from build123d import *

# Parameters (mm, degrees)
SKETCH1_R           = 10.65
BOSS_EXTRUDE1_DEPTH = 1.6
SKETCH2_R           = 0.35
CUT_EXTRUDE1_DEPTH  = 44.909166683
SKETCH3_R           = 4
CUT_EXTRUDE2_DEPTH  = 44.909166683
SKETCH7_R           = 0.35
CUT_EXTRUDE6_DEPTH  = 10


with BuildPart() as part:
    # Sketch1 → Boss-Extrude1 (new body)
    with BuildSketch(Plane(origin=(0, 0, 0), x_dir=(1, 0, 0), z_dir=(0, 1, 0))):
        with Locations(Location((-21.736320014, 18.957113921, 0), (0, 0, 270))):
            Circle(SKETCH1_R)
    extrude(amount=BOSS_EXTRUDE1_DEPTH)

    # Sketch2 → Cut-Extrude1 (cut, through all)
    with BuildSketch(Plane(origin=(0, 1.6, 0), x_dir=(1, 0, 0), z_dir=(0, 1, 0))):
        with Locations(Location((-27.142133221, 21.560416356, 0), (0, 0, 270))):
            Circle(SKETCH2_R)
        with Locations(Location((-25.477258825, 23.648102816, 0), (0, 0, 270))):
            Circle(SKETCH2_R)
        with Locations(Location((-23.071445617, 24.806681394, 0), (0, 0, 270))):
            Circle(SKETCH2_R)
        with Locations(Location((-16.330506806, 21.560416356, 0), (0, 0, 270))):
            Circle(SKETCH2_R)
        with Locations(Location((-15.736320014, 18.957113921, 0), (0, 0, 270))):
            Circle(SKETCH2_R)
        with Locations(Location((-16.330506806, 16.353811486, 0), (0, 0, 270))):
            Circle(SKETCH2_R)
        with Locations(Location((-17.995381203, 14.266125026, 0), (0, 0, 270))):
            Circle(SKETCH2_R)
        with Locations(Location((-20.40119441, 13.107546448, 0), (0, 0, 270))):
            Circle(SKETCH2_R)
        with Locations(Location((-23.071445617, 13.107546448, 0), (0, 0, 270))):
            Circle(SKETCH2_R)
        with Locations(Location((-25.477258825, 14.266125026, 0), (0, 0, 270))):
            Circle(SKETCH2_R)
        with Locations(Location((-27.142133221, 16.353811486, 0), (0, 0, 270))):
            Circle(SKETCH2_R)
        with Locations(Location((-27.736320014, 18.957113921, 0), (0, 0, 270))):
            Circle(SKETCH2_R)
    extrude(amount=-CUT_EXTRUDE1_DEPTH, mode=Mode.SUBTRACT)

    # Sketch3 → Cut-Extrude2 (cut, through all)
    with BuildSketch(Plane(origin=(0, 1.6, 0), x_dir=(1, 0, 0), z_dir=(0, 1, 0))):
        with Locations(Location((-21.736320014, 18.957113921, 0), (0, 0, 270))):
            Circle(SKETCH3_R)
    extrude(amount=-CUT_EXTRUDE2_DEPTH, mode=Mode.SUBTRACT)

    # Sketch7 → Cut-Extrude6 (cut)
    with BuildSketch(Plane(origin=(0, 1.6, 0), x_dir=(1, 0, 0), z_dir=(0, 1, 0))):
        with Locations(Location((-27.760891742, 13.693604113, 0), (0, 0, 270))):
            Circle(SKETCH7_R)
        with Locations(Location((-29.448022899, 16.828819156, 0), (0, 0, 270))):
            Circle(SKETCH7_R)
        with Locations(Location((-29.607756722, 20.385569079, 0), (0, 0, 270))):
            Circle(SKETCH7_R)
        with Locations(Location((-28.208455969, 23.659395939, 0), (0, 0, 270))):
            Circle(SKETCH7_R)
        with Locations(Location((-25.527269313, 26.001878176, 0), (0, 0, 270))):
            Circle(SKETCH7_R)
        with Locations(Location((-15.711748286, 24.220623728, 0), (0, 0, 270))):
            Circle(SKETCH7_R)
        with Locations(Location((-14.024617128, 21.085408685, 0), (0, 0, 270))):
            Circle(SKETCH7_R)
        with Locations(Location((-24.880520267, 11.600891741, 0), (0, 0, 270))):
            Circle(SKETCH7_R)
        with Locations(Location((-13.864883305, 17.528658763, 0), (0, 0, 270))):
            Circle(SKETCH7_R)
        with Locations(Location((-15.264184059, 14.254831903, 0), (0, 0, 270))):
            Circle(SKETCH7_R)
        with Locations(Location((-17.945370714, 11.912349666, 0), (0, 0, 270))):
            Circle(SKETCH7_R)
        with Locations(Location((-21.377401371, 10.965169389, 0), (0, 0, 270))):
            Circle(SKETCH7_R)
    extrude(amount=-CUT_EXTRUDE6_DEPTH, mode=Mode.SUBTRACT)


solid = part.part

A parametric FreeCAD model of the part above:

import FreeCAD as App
import Part
import Sketcher

V = App.Vector
Q = App.Units.Quantity

doc = App.newDocument("Part")
body = doc.addObject("PartDesign::Body", "Body")

sketch1 = body.newObject("Sketcher::SketchObject", "Sketch")
sketch1.AttachmentSupport = (doc.getObject("XZ_Plane"), [""])
sketch1.MapMode = "FlatFace"
sketch1.addGeometry(Part.Circle(V(-22, -19, 0), V(0, 0, 1), 11), False)
sketch1.addConstraint(Sketcher.Constraint("Diameter", 0, Q("21.3 mm")))
sketch1.addConstraint(Sketcher.Constraint("DistanceX", 0, 3, -1, 1, Q("21.73632 mm")))
sketch1.addConstraint(Sketcher.Constraint("DistanceY", 0, 3, -1, 1, Q("18.957114 mm")))
pad1 = body.newObject("PartDesign::Pad", "Pad")
pad1.Profile = sketch1
pad1.Length = 1.6
pad1.Reversed = True

sketch2 = body.newObject("Sketcher::SketchObject", "Sketch001")
sketch2.AttachmentSupport = (doc.getObject("XZ_Plane"), [""])
sketch2.MapMode = "FlatFace"
sketch2.AttachmentOffset = App.Placement(V(0, 0, -1.6), App.Rotation())
sketch2.addGeometry(Part.Circle(V(-27.14, -21.56, 0), V(0, 0, 1), 0.35), False)
sketch2.addGeometry(Part.Circle(V(-25.48, -23.65, 0), V(0, 0, 1), 0.35), False)
sketch2.addGeometry(Part.Circle(V(-23.07, -24.81, 0), V(0, 0, 1), 0.35), False)
sketch2.addGeometry(Part.Circle(V(-16.33, -21.56, 0), V(0, 0, 1), 0.35), False)
sketch2.addGeometry(Part.Circle(V(-15.74, -18.96, 0), V(0, 0, 1), 0.35), False)
sketch2.addGeometry(Part.Circle(V(-16.33, -16.35, 0), V(0, 0, 1), 0.35), False)
sketch2.addGeometry(Part.Circle(V(-18, -14.27, 0), V(0, 0, 1), 0.35), False)
sketch2.addGeometry(Part.Circle(V(-20.4, -13.11, 0), V(0, 0, 1), 0.35), False)
sketch2.addGeometry(Part.Circle(V(-23.07, -13.11, 0), V(0, 0, 1), 0.35), False)
sketch2.addGeometry(Part.Circle(V(-25.48, -14.27, 0), V(0, 0, 1), 0.35), False)
sketch2.addGeometry(Part.Circle(V(-27.14, -16.35, 0), V(0, 0, 1), 0.35), False)
sketch2.addGeometry(Part.Circle(V(-27.74, -18.96, 0), V(0, 0, 1), 0.35), False)
sketch2.addConstraint(Sketcher.Constraint("Equal", 0, 1))
sketch2.addConstraint(Sketcher.Constraint("Equal", 1, 2))
sketch2.addConstraint(Sketcher.Constraint("Equal", 2, 3))
sketch2.addConstraint(Sketcher.Constraint("Equal", 3, 4))
sketch2.addConstraint(Sketcher.Constraint("Equal", 4, 5))
sketch2.addConstraint(Sketcher.Constraint("Equal", 5, 6))
sketch2.addConstraint(Sketcher.Constraint("Equal", 6, 7))
sketch2.addConstraint(Sketcher.Constraint("Equal", 7, 8))
sketch2.addConstraint(Sketcher.Constraint("Equal", 8, 9))
sketch2.addConstraint(Sketcher.Constraint("Equal", 9, 10))
sketch2.addConstraint(Sketcher.Constraint("Equal", 10, 11))
sketch2.addConstraint(Sketcher.Constraint("Horizontal", 0, 3, 3, 3))
sketch2.addConstraint(Sketcher.Constraint("Horizontal", 7, 3, 8, 3))
sketch2.addConstraint(Sketcher.Constraint("Horizontal", 6, 3, 9, 3))
sketch2.addConstraint(Sketcher.Constraint("Horizontal", 5, 3, 10, 3))
sketch2.addConstraint(Sketcher.Constraint("Horizontal", 4, 3, 11, 3))
sketch2.addConstraint(Sketcher.Constraint("Vertical", 3, 3, 5, 3))
sketch2.addConstraint(Sketcher.Constraint("Vertical", 2, 3, 8, 3))
sketch2.addConstraint(Sketcher.Constraint("Vertical", 1, 3, 9, 3))
sketch2.addConstraint(Sketcher.Constraint("Vertical", 0, 3, 10, 3))
sketch2.addConstraint(Sketcher.Constraint("Diameter", 0, Q("0.7 mm")))
sketch2.addConstraint(Sketcher.Constraint("DistanceX", 1, 3, -1, 1, Q("25.477259 mm")))
sketch2.addConstraint(Sketcher.Constraint("DistanceY", 2, 3, -1, 1, Q("24.806681 mm")))
sketch2.addConstraint(Sketcher.Constraint("DistanceX", 4, 3, -1, 1, Q("15.73632 mm")))
sketch2.addConstraint(Sketcher.Constraint("DistanceY", 5, 3, -1, 1, Q("16.353811 mm")))
sketch2.addConstraint(Sketcher.Constraint("DistanceX", 6, 3, -1, 1, Q("17.995381 mm")))
sketch2.addConstraint(Sketcher.Constraint("DistanceX", 11, 3, -1, 1, Q("27.73632 mm")))
sketch2.addConstraint(Sketcher.Constraint("DistanceY", 2, 3, 1, 3, Q("1.158579 mm")))
sketch2.addConstraint(Sketcher.Constraint("DistanceX", 2, 3, 3, 3, Q("6.740939 mm")))
sketch2.addConstraint(Sketcher.Constraint("DistanceY", 1, 3, 4, 3, Q("4.690989 mm")))
sketch2.addConstraint(Sketcher.Constraint("DistanceY", 4, 3, 6, 3, Q("4.690989 mm")))
sketch2.addConstraint(Sketcher.Constraint("DistanceY", 3, 3, 6, 3, Q("7.294291 mm")))
sketch2.addConstraint(Sketcher.Constraint("DistanceY", 6, 3, 7, 3, Q("1.158579 mm")))
sketch2.addConstraint(Sketcher.Constraint("DistanceX", 0, 3, 7, 3, Q("6.740939 mm")))
sketch2.addConstraint(Sketcher.Constraint("DistanceX", 8, 3, 7, 3, Q("2.670251 mm")))
sketch2.addConstraint(Sketcher.Constraint("DistanceX", 0, 3, -1, 1, Q("27.142133 mm")))
pocket1 = body.newObject("PartDesign::Pocket", "Pocket")
pocket1.Profile = sketch2
pocket1.Type = "ThroughAll"
pocket1.Reversed = True

sketch3 = body.newObject("Sketcher::SketchObject", "Sketch002")
sketch3.AttachmentSupport = (doc.getObject("XZ_Plane"), [""])
sketch3.MapMode = "FlatFace"
sketch3.AttachmentOffset = App.Placement(V(0, 0, -1.6), App.Rotation())
sketch3.addGeometry(Part.Circle(V(-21.7, -19, 0), V(0, 0, 1), 4), False)
sketch3.addConstraint(Sketcher.Constraint("Diameter", 0, Q("8 mm")))
sketch3.addConstraint(Sketcher.Constraint("DistanceX", 0, 3, -1, 1, Q("21.73632 mm")))
sketch3.addConstraint(Sketcher.Constraint("DistanceY", 0, 3, -1, 1, Q("18.957114 mm")))
pocket2 = body.newObject("PartDesign::Pocket", "Pocket001")
pocket2.Profile = sketch3
pocket2.Type = "ThroughAll"
pocket2.Reversed = True

sketch4 = body.newObject("Sketcher::SketchObject", "Sketch003")
sketch4.AttachmentSupport = (doc.getObject("XZ_Plane"), [""])
sketch4.MapMode = "FlatFace"
sketch4.AttachmentOffset = App.Placement(V(0, 0, -1.6), App.Rotation())
sketch4.addGeometry(Part.Circle(V(-27.76, -13.69, 0), V(0, 0, 1), 0.35), False)
sketch4.addGeometry(Part.Circle(V(-29.45, -16.83, 0), V(0, 0, 1), 0.35), False)
sketch4.addGeometry(Part.Circle(V(-29.61, -20.39, 0), V(0, 0, 1), 0.35), False)
sketch4.addGeometry(Part.Circle(V(-28.21, -23.66, 0), V(0, 0, 1), 0.35), False)
sketch4.addGeometry(Part.Circle(V(-25.53, -26, 0), V(0, 0, 1), 0.35), False)
sketch4.addGeometry(Part.Circle(V(-15.71, -24.22, 0), V(0, 0, 1), 0.35), False)
sketch4.addGeometry(Part.Circle(V(-14.02, -21.09, 0), V(0, 0, 1), 0.35), False)
sketch4.addGeometry(Part.Circle(V(-24.88, -11.6, 0), V(0, 0, 1), 0.35), False)
sketch4.addGeometry(Part.Circle(V(-13.86, -17.53, 0), V(0, 0, 1), 0.35), False)
sketch4.addGeometry(Part.Circle(V(-15.26, -14.25, 0), V(0, 0, 1), 0.35), False)
sketch4.addGeometry(Part.Circle(V(-17.95, -11.91, 0), V(0, 0, 1), 0.35), False)
sketch4.addGeometry(Part.Circle(V(-21.38, -10.97, 0), V(0, 0, 1), 0.35), False)
sketch4.addConstraint(Sketcher.Constraint("Equal", 0, 1))
sketch4.addConstraint(Sketcher.Constraint("Equal", 1, 2))
sketch4.addConstraint(Sketcher.Constraint("Equal", 2, 3))
sketch4.addConstraint(Sketcher.Constraint("Equal", 3, 4))
sketch4.addConstraint(Sketcher.Constraint("Equal", 4, 5))
sketch4.addConstraint(Sketcher.Constraint("Equal", 5, 6))
sketch4.addConstraint(Sketcher.Constraint("Equal", 6, 7))
sketch4.addConstraint(Sketcher.Constraint("Equal", 7, 8))
sketch4.addConstraint(Sketcher.Constraint("Equal", 8, 9))
sketch4.addConstraint(Sketcher.Constraint("Equal", 9, 10))
sketch4.addConstraint(Sketcher.Constraint("Equal", 10, 11))
sketch4.addConstraint(Sketcher.Constraint("Diameter", 0, Q("0.7 mm")))
sketch4.addConstraint(Sketcher.Constraint("DistanceX", 11, 3, -1, 1, Q("21.377401 mm")))
sketch4.addConstraint(Sketcher.Constraint("DistanceX", 2, 3, 3, 3, Q("1.399301 mm")))
sketch4.addConstraint(Sketcher.Constraint("DistanceX", 9, 3, 8, 3, Q("1.399301 mm")))
sketch4.addConstraint(Sketcher.Constraint("DistanceX", 0, 3, -1, 1, Q("27.760892 mm")))
sketch4.addConstraint(Sketcher.Constraint("DistanceY", 1, 3, -1, 1, Q("16.828819 mm")))
sketch4.addConstraint(Sketcher.Constraint("DistanceY", 2, 3, -1, 1, Q("20.385569 mm")))
sketch4.addConstraint(Sketcher.Constraint("DistanceX", 4, 3, -1, 1, Q("25.527269 mm")))
sketch4.addConstraint(Sketcher.Constraint("DistanceY", 4, 3, -1, 1, Q("26.001878 mm")))
sketch4.addConstraint(Sketcher.Constraint("DistanceX", 5, 3, -1, 1, Q("15.711748 mm")))
sketch4.addConstraint(Sketcher.Constraint("DistanceY", 6, 3, -1, 1, Q("21.085409 mm")))
sketch4.addConstraint(Sketcher.Constraint("DistanceX", 7, 3, -1, 1, Q("24.88052 mm")))
sketch4.addConstraint(Sketcher.Constraint("DistanceY", 7, 3, -1, 1, Q("11.600892 mm")))
sketch4.addConstraint(Sketcher.Constraint("DistanceY", 8, 3, -1, 1, Q("17.528659 mm")))
sketch4.addConstraint(Sketcher.Constraint("DistanceY", 9, 3, -1, 1, Q("14.254832 mm")))
sketch4.addConstraint(Sketcher.Constraint("DistanceX", 10, 3, -1, 1, Q("17.945371 mm")))
sketch4.addConstraint(Sketcher.Constraint("DistanceY", 10, 3, -1, 1, Q("11.91235 mm")))
sketch4.addConstraint(Sketcher.Constraint("DistanceY", 11, 3, -1, 1, Q("10.965169 mm")))
sketch4.addConstraint(Sketcher.Constraint("DistanceX", 1, 3, 0, 3, Q("1.687131 mm")))
sketch4.addConstraint(Sketcher.Constraint("DistanceY", 3, 3, 0, 3, Q("9.965792 mm")))
sketch4.addConstraint(Sketcher.Constraint("DistanceX", 2, 3, 5, 3, Q("13.896008 mm")))
sketch4.addConstraint(Sketcher.Constraint("DistanceY", 5, 3, 0, 3, Q("10.52702 mm")))
sketch4.addConstraint(Sketcher.Constraint("DistanceX", 5, 3, 6, 3, Q("1.687131 mm")))
sketch4.addConstraint(Sketcher.Constraint("DistanceX", 0, 3, 8, 3, Q("13.896008 mm")))
sketch4.addConstraint(Sketcher.Constraint("DistanceY", 5, 3, 9, 3, Q("9.965792 mm")))
pocket3 = body.newObject("PartDesign::Pocket", "Pocket002")
pocket3.Profile = sketch4
pocket3.Length = 10
pocket3.Reversed = True

doc.recompute()
